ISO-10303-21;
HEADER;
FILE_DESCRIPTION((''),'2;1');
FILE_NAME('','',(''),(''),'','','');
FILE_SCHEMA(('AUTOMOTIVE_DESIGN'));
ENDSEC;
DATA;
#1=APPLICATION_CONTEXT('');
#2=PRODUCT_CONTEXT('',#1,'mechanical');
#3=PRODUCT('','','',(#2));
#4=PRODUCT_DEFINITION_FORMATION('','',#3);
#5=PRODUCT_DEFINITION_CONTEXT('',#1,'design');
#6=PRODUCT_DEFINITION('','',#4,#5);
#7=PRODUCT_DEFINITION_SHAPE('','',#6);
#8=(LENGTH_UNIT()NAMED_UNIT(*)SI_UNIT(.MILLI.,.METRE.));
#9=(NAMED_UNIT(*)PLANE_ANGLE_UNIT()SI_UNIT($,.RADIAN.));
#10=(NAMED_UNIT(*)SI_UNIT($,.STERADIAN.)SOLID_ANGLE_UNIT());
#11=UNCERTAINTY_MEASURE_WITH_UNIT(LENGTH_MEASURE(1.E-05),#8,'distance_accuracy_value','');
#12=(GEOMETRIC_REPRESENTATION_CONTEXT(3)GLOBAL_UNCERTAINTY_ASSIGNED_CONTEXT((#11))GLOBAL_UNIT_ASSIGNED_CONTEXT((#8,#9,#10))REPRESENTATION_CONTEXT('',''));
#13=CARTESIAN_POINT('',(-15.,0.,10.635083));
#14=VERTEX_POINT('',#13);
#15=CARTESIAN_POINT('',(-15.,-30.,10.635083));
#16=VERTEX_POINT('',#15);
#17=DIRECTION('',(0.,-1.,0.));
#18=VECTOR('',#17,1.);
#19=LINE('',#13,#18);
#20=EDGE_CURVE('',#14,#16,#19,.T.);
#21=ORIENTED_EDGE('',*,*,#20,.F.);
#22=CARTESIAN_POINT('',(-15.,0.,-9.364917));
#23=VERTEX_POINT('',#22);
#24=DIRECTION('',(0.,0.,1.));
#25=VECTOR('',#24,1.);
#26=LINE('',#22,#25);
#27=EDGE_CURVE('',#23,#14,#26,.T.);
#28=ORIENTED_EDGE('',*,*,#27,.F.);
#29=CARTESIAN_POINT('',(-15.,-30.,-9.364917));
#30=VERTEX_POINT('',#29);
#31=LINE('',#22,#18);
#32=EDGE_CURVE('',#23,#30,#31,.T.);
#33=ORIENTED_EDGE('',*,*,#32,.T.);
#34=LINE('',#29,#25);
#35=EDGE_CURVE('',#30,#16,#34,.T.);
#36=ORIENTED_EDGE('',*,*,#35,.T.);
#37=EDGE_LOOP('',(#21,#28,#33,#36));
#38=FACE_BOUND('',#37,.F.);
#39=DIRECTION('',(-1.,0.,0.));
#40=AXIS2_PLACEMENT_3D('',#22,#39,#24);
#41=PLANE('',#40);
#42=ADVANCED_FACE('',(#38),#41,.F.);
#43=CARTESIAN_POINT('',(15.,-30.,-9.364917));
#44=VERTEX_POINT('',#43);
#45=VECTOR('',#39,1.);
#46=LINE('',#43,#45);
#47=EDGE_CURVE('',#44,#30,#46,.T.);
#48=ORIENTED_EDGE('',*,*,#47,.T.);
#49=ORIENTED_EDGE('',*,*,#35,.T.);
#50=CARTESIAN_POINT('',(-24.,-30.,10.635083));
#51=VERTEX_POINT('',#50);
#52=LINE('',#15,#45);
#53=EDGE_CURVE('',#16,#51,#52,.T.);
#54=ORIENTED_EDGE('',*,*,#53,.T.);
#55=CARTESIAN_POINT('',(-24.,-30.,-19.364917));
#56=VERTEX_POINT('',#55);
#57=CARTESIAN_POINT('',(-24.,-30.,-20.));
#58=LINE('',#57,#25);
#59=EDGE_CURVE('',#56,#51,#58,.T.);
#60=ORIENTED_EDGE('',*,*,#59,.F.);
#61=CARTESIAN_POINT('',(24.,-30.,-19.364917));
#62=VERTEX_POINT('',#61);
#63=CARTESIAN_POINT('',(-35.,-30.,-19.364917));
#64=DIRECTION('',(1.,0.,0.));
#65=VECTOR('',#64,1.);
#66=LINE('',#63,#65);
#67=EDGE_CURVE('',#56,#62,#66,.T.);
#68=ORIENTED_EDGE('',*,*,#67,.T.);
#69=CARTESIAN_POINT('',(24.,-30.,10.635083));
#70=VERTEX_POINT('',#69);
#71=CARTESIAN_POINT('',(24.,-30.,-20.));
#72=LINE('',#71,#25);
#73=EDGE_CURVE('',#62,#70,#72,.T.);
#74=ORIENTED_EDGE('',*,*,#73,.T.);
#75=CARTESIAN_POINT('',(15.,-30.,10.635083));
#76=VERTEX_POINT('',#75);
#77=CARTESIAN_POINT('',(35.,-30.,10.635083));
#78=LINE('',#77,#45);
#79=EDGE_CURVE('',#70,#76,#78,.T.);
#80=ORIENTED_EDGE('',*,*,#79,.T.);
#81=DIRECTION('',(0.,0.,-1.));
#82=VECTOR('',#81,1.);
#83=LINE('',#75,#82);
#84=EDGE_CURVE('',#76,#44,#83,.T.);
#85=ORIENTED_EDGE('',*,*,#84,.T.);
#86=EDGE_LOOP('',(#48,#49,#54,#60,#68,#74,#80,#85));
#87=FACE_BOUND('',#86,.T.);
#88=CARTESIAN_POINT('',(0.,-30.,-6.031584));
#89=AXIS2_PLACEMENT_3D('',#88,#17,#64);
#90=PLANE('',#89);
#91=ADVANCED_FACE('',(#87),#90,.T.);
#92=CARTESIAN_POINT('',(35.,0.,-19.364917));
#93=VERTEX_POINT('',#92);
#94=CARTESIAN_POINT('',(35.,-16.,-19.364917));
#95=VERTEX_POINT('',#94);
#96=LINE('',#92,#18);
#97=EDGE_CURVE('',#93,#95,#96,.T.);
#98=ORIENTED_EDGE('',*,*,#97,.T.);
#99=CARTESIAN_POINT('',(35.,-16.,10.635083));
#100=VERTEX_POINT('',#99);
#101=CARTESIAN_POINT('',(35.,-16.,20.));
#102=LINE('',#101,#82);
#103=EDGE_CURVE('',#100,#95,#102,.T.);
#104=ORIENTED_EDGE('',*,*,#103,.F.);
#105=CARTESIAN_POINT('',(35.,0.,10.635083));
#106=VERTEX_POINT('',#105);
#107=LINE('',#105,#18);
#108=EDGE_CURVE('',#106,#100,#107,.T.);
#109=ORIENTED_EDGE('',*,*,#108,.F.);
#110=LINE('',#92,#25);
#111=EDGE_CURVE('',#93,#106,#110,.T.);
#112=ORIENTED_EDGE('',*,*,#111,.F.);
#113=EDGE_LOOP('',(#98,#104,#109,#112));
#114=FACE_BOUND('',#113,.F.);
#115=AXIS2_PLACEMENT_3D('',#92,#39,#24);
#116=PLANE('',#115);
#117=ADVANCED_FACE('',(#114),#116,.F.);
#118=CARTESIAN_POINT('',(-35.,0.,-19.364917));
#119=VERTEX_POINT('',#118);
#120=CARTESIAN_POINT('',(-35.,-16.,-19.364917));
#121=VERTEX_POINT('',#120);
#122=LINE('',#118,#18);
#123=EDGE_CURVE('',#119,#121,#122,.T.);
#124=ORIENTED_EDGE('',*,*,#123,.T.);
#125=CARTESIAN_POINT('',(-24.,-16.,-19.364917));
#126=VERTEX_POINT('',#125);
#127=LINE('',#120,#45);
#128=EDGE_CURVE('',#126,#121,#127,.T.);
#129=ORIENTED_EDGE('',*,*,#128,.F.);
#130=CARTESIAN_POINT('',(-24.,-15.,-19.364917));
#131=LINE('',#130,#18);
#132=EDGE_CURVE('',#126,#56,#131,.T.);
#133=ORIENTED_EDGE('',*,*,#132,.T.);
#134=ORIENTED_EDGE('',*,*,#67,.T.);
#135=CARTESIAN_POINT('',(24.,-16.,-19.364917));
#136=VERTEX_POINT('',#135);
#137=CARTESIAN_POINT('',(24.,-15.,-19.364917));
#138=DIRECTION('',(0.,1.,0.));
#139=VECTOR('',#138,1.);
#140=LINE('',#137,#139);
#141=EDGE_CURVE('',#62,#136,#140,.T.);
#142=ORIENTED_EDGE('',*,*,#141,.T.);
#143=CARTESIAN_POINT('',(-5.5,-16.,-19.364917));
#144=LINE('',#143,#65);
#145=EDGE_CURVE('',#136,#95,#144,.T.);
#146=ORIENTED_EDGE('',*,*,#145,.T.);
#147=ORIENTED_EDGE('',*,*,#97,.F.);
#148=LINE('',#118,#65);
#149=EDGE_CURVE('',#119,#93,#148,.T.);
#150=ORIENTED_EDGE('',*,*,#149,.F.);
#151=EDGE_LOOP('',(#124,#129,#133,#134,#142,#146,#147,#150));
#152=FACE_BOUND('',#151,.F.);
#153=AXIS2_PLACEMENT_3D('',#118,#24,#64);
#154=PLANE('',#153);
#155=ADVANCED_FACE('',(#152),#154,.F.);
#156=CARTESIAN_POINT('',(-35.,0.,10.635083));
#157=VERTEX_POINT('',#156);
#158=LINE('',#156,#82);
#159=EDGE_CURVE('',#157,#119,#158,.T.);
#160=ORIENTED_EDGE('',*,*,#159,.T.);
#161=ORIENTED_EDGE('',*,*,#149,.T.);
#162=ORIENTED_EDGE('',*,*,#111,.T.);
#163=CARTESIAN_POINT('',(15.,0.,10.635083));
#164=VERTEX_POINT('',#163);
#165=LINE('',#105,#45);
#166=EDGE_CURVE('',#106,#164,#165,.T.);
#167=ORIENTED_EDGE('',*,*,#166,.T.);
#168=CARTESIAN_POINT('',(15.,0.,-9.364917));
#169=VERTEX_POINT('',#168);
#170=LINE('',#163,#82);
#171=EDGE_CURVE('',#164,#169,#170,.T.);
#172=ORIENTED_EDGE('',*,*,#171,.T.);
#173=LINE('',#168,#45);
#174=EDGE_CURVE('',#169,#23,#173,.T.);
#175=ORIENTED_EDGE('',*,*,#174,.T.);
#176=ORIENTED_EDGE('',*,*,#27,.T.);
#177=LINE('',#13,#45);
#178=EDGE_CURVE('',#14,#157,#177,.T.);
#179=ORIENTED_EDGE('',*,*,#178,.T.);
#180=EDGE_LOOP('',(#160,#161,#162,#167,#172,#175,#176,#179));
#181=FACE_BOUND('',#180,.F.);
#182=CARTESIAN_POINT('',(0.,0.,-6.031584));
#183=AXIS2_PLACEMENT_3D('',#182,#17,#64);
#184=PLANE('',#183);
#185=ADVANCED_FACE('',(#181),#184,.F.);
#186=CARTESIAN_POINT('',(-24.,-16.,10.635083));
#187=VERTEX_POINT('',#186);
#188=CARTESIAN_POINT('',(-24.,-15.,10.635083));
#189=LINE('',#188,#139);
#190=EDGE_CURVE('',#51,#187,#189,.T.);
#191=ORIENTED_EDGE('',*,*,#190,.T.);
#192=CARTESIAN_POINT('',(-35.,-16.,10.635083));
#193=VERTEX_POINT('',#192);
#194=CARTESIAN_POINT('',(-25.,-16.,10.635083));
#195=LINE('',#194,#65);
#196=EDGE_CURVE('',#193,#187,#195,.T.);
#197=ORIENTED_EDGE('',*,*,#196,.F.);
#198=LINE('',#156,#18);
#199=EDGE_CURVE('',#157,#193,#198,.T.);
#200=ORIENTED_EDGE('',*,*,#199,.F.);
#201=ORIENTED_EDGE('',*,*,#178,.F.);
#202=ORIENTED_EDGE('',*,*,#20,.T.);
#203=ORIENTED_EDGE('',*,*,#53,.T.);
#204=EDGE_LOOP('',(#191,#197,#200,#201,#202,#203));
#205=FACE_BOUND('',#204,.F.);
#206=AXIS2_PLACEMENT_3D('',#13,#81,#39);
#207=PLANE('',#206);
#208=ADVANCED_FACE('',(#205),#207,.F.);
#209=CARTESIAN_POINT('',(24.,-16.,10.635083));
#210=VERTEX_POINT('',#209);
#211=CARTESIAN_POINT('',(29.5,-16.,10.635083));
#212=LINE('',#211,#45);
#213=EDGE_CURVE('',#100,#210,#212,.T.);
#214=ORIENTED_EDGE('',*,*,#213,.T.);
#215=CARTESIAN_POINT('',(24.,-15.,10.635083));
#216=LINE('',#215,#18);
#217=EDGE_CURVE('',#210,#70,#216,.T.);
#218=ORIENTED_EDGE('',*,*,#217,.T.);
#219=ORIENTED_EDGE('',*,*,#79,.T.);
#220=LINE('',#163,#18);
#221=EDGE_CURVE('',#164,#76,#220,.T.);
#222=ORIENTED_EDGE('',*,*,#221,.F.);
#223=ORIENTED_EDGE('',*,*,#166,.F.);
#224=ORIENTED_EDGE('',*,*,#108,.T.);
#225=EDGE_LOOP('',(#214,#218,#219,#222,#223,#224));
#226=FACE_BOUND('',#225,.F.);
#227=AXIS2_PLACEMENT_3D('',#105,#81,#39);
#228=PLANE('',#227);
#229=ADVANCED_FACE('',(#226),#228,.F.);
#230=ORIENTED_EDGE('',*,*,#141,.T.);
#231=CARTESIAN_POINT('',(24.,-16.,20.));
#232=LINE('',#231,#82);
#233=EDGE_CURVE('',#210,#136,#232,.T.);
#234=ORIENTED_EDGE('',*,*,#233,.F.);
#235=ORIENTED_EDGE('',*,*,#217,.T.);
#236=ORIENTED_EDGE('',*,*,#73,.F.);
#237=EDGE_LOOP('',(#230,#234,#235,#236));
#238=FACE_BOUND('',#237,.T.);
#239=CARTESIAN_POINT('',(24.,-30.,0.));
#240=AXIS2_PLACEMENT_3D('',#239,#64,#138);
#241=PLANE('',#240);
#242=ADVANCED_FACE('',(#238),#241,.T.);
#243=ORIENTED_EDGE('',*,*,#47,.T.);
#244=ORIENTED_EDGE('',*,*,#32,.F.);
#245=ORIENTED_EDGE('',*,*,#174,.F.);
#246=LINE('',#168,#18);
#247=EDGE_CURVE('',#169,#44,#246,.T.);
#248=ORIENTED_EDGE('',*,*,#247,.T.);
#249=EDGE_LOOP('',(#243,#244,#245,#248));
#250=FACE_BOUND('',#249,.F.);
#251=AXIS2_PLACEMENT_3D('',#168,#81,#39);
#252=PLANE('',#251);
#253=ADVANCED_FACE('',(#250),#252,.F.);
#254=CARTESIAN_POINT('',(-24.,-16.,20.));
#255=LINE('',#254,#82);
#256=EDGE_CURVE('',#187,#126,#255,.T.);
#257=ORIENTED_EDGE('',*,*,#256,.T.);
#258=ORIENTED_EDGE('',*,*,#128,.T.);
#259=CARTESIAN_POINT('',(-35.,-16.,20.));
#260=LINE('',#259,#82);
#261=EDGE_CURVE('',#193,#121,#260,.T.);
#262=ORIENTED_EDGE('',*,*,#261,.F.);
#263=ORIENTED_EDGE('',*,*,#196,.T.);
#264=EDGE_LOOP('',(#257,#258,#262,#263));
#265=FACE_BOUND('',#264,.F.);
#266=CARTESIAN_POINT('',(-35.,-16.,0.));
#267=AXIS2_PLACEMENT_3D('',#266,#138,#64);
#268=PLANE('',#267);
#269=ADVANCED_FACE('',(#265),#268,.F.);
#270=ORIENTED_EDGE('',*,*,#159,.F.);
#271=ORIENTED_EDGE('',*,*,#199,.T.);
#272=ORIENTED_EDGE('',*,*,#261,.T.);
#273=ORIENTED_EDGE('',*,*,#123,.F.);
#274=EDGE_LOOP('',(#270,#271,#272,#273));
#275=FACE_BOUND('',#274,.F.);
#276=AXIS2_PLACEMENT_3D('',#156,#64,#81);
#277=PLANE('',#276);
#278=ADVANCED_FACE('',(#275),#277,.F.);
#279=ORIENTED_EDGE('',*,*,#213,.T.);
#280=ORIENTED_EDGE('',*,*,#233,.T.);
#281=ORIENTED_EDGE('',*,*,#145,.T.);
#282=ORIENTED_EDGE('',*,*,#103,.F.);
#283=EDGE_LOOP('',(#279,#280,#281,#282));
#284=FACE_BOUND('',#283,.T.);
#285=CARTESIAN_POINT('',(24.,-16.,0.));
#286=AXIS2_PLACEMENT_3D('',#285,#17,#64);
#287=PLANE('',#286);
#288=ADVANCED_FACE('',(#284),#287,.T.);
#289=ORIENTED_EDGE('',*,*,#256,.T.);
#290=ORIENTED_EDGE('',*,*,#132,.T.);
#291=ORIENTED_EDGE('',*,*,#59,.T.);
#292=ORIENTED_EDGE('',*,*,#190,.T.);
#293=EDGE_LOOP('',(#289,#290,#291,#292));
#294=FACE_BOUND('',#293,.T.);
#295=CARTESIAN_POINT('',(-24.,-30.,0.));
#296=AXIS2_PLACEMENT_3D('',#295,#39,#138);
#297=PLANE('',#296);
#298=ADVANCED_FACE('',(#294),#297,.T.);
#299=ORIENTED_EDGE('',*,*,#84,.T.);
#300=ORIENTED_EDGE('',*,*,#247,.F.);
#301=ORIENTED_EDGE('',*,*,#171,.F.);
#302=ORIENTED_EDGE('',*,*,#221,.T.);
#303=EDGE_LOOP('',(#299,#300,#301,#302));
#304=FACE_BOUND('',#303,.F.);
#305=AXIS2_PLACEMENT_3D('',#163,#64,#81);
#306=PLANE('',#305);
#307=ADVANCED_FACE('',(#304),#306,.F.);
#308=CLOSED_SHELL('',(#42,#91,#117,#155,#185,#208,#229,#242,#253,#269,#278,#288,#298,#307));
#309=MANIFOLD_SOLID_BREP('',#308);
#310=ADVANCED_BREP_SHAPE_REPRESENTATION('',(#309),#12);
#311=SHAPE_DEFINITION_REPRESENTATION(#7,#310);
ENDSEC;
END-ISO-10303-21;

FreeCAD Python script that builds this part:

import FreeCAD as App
import Part
import Sketcher
from FreeCAD import Vector
Q = App.Units.Quantity

doc = App.newDocument("Part")
body = doc.addObject("PartDesign::Body", "Body")

# Sketch on XZ plane
sketch1 = body.newObject("Sketcher::SketchObject", "Sketch")
sketch1.AttachmentSupport = (doc.getObject("XZ_Plane"), [""])
sketch1.MapMode = "FlatFace"
sketch1.addGeometry(Part.LineSegment(Vector(-15, 10.635083, 0), Vector(-35, 10.635083, 0)), False)
sketch1.addGeometry(Part.LineSegment(Vector(-35, 10.635083, 0), Vector(-35, -19.364917, 0)), False)
sketch1.addGeometry(Part.LineSegment(Vector(-35, -19.364917, 0), Vector(35, -19.364917, 0)), False)
sketch1.addGeometry(Part.LineSegment(Vector(35, -19.364917, 0), Vector(35, 10.635083, 0)), False)
sketch1.addGeometry(Part.LineSegment(Vector(35, 10.635083, 0), Vector(15, 10.635083, 0)), False)
sketch1.addGeometry(Part.LineSegment(Vector(15, 10.635083, 0), Vector(15, -9.364917, 0)), False)
sketch1.addGeometry(Part.LineSegment(Vector(15, -9.364917, 0), Vector(-15, -9.364917, 0)), False)
sketch1.addGeometry(Part.LineSegment(Vector(-15, -9.364917, 0), Vector(-15, 10.635083, 0)), False)
sketch1.addConstraint(Sketcher.Constraint("Coincident", 0, 2, 1, 1))
sketch1.addConstraint(Sketcher.Constraint("Coincident", 1, 2, 2, 1))
sketch1.addConstraint(Sketcher.Constraint("Coincident", 2, 2, 3, 1))
sketch1.addConstraint(Sketcher.Constraint("Coincident", 3, 2, 4, 1))
sketch1.addConstraint(Sketcher.Constraint("Coincident", 4, 2, 5, 1))
sketch1.addConstraint(Sketcher.Constraint("Coincident", 5, 2, 6, 1))
sketch1.addConstraint(Sketcher.Constraint("Coincident", 6, 2, 7, 1))
sketch1.addConstraint(Sketcher.Constraint("Coincident", 7, 2, 0, 1))
sketch1.addConstraint(Sketcher.Constraint("Horizontal", 0))
sketch1.addConstraint(Sketcher.Constraint("Vertical", 1))
sketch1.addConstraint(Sketcher.Constraint("Horizontal", 2))
sketch1.addConstraint(Sketcher.Constraint("Vertical", 3))
sketch1.addConstraint(Sketcher.Constraint("Horizontal", 4))
sketch1.addConstraint(Sketcher.Constraint("Vertical", 5))
sketch1.addConstraint(Sketcher.Constraint("Horizontal", 6))
sketch1.addConstraint(Sketcher.Constraint("Vertical", 7))
sketch1.addConstraint(Sketcher.Constraint("Symmetric", 0, 2, 3, 2, -2))
sketch1.addConstraint(Sketcher.Constraint("Equal", 0, 4))
sketch1.addConstraint(Sketcher.Constraint("Equal", 6, 1))
sketch1.addConstraint(Sketcher.Constraint("Equal", 4, 5))
sketch1.addConstraint(Sketcher.Constraint("DistanceX", 0, 2, 0, 1, Q("20 mm")))
sketch1.addConstraint(Sketcher.Constraint("DistanceX", 2, 1, 2, 2, Q("70 mm")))
sketch1.addConstraint(Sketcher.Constraint("DistanceY", -1, 1, 0, 2, Q("10.635083 mm")))
pad1 = body.newObject("PartDesign::Pad", "Pad")
pad1.Profile = sketch1
pad1.Length = 30

# Sketch on XY plane
sketch2 = body.newObject("Sketcher::SketchObject", "Sketch001")
sketch2.AttachmentSupport = (doc.getObject("XY_Plane"), [""])
sketch2.MapMode = "FlatFace"
sketch2.addGeometry(Part.LineSegment(Vector(-35, -16, 0), Vector(-35, -30, 0)), False)
sketch2.addGeometry(Part.LineSegment(Vector(-35, -30, 0), Vector(-24, -30, 0)), False)
sketch2.addGeometry(Part.LineSegment(Vector(-24, -30, 0), Vector(-24, -16, 0)), False)
sketch2.addGeometry(Part.LineSegment(Vector(-24, -16, 0), Vector(-35, -16, 0)), False)
sketch2.addGeometry(Part.LineSegment(Vector(24, -16, 0), Vector(24, -30, 0)), False)
sketch2.addGeometry(Part.LineSegment(Vector(24, -30, 0), Vector(35, -30, 0)), False)
sketch2.addGeometry(Part.LineSegment(Vector(35, -30, 0), Vector(35, -16, 0)), False)
sketch2.addGeometry(Part.LineSegment(Vector(35, -16, 0), Vector(24, -16, 0)), False)
sketch2.addConstraint(Sketcher.Constraint("Coincident", 0, 2, 1, 1))
sketch2.addConstraint(Sketcher.Constraint("Coincident", 1, 2, 2, 1))
sketch2.addConstraint(Sketcher.Constraint("Coincident", 2, 2, 3, 1))
sketch2.addConstraint(Sketcher.Constraint("Coincident", 3, 2, 0, 1))
sketch2.addConstraint(Sketcher.Constraint("Coincident", 4, 2, 5, 1))
sketch2.addConstraint(Sketcher.Constraint("Coincident", 5, 2, 6, 1))
sketch2.addConstraint(Sketcher.Constraint("Coincident", 6, 2, 7, 1))
sketch2.addConstraint(Sketcher.Constraint("Coincident", 7, 2, 4, 1))
sketch2.addConstraint(Sketcher.Constraint("Vertical", 0))
sketch2.addConstraint(Sketcher.Constraint("Horizontal", 1))
sketch2.addConstraint(Sketcher.Constraint("Vertical", 2))
sketch2.addConstraint(Sketcher.Constraint("Horizontal", 3))
sketch2.addConstraint(Sketcher.Constraint("Vertical", 4))
sketch2.addConstraint(Sketcher.Constraint("Horizontal", 5))
sketch2.addConstraint(Sketcher.Constraint("Vertical", 6))
sketch2.addConstraint(Sketcher.Constraint("Horizontal", 7))
sketch2.addConstraint(Sketcher.Constraint("Symmetric", 1, 2, 4, 2, -2))
sketch2.addConstraint(Sketcher.Constraint("Symmetric", 3, 2, 6, 2, -2))
sketch2.addConstraint(Sketcher.Constraint("DistanceX", 1, 1, 1, 2, Q("11 mm")))
sketch2.addConstraint(Sketcher.Constraint("DistanceY", 0, 2, 0, 1, Q("14 mm")))
sketch2.addConstraint(Sketcher.Constraint("DistanceX", 0, 2, -1, 1, Q("35 mm")))
sketch2.addConstraint(Sketcher.Constraint("DistanceY", 0, 2, -1, 1, Q("30 mm")))
pocket1 = body.newObject("PartDesign::Pocket", "Pocket")
pocket1.Profile = sketch2
pocket1.Length = 40
pocket1.Midplane = True

doc.recompute()
